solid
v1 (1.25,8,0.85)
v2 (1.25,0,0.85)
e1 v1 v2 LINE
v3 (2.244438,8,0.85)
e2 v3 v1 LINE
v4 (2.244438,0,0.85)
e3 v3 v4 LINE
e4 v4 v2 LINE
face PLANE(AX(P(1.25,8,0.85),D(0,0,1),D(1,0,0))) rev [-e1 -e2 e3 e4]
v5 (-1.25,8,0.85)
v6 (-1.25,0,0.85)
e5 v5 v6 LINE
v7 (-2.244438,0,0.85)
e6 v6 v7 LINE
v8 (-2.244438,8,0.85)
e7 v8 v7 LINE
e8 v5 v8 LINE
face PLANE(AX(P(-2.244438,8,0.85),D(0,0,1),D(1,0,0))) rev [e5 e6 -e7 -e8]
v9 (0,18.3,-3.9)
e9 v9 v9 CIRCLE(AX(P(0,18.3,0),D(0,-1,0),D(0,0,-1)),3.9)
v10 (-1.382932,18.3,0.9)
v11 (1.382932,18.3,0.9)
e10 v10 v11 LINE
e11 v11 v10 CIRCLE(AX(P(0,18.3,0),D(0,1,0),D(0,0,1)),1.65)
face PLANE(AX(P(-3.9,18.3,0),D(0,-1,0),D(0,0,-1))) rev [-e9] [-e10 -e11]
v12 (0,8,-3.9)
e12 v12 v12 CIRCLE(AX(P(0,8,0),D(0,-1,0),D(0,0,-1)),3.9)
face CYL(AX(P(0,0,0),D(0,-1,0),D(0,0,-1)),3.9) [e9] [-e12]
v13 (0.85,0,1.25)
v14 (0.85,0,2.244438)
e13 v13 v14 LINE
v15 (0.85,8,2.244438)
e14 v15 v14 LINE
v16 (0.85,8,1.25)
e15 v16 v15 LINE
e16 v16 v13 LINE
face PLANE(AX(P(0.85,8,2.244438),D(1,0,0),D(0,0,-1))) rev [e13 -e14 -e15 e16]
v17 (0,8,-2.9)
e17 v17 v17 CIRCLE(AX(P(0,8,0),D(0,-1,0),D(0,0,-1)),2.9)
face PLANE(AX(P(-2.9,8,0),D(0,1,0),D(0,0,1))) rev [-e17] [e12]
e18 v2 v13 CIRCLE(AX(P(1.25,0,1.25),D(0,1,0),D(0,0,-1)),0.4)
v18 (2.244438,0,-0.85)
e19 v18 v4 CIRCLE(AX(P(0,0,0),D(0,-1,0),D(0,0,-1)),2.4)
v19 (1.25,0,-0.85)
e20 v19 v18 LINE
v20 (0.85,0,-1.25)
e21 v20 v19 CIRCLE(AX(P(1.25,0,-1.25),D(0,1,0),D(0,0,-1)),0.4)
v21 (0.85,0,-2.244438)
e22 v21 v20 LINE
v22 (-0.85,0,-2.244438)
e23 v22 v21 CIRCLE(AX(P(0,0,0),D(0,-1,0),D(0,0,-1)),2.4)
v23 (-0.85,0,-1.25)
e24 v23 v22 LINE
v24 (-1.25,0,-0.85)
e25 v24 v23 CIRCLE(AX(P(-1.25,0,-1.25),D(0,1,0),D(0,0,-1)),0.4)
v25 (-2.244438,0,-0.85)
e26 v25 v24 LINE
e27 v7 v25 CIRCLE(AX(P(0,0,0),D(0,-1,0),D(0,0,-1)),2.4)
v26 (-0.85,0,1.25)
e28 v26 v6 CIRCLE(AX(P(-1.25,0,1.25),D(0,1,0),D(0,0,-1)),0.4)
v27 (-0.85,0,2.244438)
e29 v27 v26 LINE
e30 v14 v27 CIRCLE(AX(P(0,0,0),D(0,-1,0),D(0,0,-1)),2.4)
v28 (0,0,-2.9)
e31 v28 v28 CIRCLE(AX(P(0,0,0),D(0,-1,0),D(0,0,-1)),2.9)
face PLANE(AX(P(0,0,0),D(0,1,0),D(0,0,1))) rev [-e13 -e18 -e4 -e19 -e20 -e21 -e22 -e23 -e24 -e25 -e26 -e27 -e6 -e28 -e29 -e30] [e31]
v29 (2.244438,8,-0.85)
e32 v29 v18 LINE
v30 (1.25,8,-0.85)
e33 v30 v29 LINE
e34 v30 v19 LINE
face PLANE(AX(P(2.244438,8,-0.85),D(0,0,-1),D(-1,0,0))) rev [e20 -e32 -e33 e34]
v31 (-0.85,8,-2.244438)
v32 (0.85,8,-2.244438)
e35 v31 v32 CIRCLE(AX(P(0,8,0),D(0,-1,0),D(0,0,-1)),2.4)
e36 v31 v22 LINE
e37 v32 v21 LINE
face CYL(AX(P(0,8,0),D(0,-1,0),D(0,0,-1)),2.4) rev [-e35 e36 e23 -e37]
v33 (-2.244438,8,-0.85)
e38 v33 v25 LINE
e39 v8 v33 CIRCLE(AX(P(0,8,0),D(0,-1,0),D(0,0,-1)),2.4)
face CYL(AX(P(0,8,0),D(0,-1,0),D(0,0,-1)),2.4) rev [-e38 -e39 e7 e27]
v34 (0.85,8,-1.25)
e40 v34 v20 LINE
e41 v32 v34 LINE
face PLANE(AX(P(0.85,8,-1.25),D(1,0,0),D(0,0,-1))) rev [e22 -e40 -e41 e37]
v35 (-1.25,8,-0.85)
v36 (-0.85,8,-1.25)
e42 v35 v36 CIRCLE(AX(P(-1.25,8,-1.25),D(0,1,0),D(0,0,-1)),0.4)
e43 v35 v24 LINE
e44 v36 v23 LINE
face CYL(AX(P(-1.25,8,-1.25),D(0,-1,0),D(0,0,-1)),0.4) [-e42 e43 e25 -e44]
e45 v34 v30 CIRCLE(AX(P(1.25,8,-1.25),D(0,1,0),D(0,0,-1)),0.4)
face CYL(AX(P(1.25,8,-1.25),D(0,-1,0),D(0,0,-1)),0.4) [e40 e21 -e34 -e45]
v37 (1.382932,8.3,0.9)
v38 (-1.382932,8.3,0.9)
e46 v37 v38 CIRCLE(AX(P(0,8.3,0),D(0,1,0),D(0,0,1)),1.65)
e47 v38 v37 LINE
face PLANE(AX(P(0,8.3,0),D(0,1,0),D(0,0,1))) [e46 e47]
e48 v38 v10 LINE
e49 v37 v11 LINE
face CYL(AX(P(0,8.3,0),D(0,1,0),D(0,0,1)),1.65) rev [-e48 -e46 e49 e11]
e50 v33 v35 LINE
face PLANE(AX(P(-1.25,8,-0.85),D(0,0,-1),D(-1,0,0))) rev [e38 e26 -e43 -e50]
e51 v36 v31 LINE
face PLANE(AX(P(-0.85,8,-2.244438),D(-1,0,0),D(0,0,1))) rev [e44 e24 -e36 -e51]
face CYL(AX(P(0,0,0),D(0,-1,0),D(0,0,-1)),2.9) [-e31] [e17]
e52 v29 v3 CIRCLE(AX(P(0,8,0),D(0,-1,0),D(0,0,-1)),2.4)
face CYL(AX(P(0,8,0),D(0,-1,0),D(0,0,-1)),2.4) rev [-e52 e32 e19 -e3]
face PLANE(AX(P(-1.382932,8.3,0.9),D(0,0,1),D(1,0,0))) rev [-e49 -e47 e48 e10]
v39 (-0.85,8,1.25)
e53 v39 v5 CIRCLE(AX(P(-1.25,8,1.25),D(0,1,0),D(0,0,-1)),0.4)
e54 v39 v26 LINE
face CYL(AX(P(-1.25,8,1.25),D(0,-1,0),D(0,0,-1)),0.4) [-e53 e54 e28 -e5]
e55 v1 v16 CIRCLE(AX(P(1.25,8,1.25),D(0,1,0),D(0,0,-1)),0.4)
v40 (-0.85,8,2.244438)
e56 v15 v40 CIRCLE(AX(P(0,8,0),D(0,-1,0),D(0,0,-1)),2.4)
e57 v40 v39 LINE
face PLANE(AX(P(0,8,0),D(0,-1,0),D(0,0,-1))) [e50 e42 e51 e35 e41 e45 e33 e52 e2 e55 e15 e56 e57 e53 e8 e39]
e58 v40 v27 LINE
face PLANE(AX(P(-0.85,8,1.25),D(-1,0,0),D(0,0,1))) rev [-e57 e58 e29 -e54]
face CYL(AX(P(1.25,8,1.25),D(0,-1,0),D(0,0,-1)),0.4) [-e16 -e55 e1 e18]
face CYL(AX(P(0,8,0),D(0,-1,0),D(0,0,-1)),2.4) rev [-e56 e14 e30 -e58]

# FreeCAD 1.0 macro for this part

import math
import FreeCAD as App
import Part
import Sketcher
from FreeCAD import Vector
Q = App.Units.Quantity


def add_polygon(sketch, points):
    """Adds a closed chain of lines whose ends are joined by coincident constraints."""
    first, n = sketch.GeometryCount, len(points)
    for a, b in zip(points, points[1:] + points[:1]):
        sketch.addGeometry(Part.LineSegment(App.Vector(*a, 0), App.Vector(*b, 0)), False)
    for i in range(n):
        sketch.addConstraint(Sketcher.Constraint("Coincident", first + i, 2, first + (i + 1) % n, 1))

doc = App.newDocument("Part")
body = doc.addObject("PartDesign::Body", "Body")

# Sketch on XY plane
sketch1 = body.newObject("Sketcher::SketchObject", "Sketch")
sketch1.AttachmentSupport = (doc.getObject("XY_Plane"), [""])
sketch1.MapMode = "FlatFace"
add_polygon(sketch1, [(-2.9, 0), (0, 0), (0, 18.3), (-3.9, 18.3), (-3.9, 8), (-2.9, 8)])  # lines 0-5
sketch1.addConstraint(Sketcher.Constraint("Horizontal", 0))
sketch1.addConstraint(Sketcher.Constraint("Vertical", 1))
sketch1.addConstraint(Sketcher.Constraint("Horizontal", 2))
sketch1.addConstraint(Sketcher.Constraint("Vertical", 3))
sketch1.addConstraint(Sketcher.Constraint("Horizontal", 4))
sketch1.addConstraint(Sketcher.Constraint("Vertical", 5))
sketch1.addConstraint(Sketcher.Constraint("Coincident", 0, 2, -1, 1))
sketch1.addConstraint(Sketcher.Constraint("DistanceX", 4, 1, 4, 2, Q("1 mm")))
sketch1.addConstraint(Sketcher.Constraint("DistanceY", 5, 2, 5, 1, Q("8 mm")))
sketch1.addConstraint(Sketcher.Constraint("DistanceX", 0, 1, 0, 2, Q("2.9 mm")))
sketch1.addConstraint(Sketcher.Constraint("DistanceY", 1, 1, 1, 2, Q("18.3 mm")))
revolution = body.newObject("PartDesign::Revolution", "Revolution")
revolution.Profile = sketch1
revolution.ReferenceAxis = (sketch1, ["V_Axis"])
revolution.Angle = 360

# Sketch on XZ plane
sketch2 = body.newObject("Sketcher::SketchObject", "Sketch001")
sketch2.AttachmentSupport = (doc.getObject("XZ_Plane"), [""])
sketch2.MapMode = "FlatFace"
sketch2.addGeometry(Part.LineSegment(Vector(0.85, 1.25, 0), Vector(0.85, 2.24, 0)), False)
sketch2.addGeometry(Part.ArcOfCircle(Part.Circle(Vector(0, 0, 0), Vector(0, 0, 1), 2.4), math.radians(69), math.radians(90)), False)
sketch2.addGeometry(Part.ArcOfCircle(Part.Circle(Vector(0, 0, 0), Vector(0, 0, 1), 2.4), math.radians(90), math.radians(111)), False)
sketch2.addGeometry(Part.LineSegment(Vector(-0.85, 2.24, 0), Vector(-0.85, 1.25, 0)), False)
sketch2.addGeometry(Part.ArcOfCircle(Part.Circle(Vector(-1.25, 1.25, 0), Vector(0, 0, 1), 0.4), math.radians(-90), math.radians(0)), False)
sketch2.addGeometry(Part.LineSegment(Vector(-1.25, 0.85, 0), Vector(-2.24, 0.85, 0)), False)
sketch2.addGeometry(Part.ArcOfCircle(Part.Circle(Vector(0, 0, 0), Vector(0, 0, 1), 2.4), math.radians(159), math.radians(180)), False)
sketch2.addGeometry(Part.ArcOfCircle(Part.Circle(Vector(0, 0, 0), Vector(0, 0, 1), 2.4), math.radians(-180), math.radians(-159)), False)
sketch2.addGeometry(Part.LineSegment(Vector(-2.24, -0.85, 0), Vector(-1.25, -0.85, 0)), False)
sketch2.addGeometry(Part.ArcOfCircle(Part.Circle(Vector(-1.25, -1.25, 0), Vector(0, 0, 1), 0.4), math.radians(0), math.radians(90)), False)
sketch2.addGeometry(Part.LineSegment(Vector(-0.85, -1.25, 0), Vector(-0.85, -2.24, 0)), False)
sketch2.addGeometry(Part.ArcOfCircle(Part.Circle(Vector(0, 0, 0), Vector(0, 0, 1), 2.4), math.radians(-111), math.radians(-90)), False)
sketch2.addGeometry(Part.ArcOfCircle(Part.Circle(Vector(0, 0, 0), Vector(0, 0, 1), 2.4), math.radians(-90), math.radians(-69)), False)
sketch2.addGeometry(Part.LineSegment(Vector(0.85, -2.24, 0), Vector(0.85, -1.25, 0)), False)
sketch2.addGeometry(Part.ArcOfCircle(Part.Circle(Vector(1.25, -1.25, 0), Vector(0, 0, 1), 0.4), math.radians(90), math.radians(180)), False)
sketch2.addGeometry(Part.LineSegment(Vector(1.25, -0.85, 0), Vector(2.24, -0.85, 0)), False)
sketch2.addGeometry(Part.ArcOfCircle(Part.Circle(Vector(0, 0, 0), Vector(0, 0, 1), 2.4), math.radians(-21), math.radians(0)), False)
sketch2.addGeometry(Part.ArcOfCircle(Part.Circle(Vector(0, 0, 0), Vector(0, 0, 1), 2.4), math.radians(0), math.radians(21)), False)
sketch2.addGeometry(Part.LineSegment(Vector(2.24, 0.85, 0), Vector(1.25, 0.85, 0)), False)
sketch2.addGeometry(Part.ArcOfCircle(Part.Circle(Vector(1.25, 1.25, 0), Vector(0, 0, 1), 0.4), math.radians(-180), math.radians(-90)), False)
sketch2.addConstraint(Sketcher.Constraint("Coincident", 0, 2, 1, 1))
sketch2.addConstraint(Sketcher.Constraint("Tangent", 1, 2, 2, 1))
sketch2.addConstraint(Sketcher.Constraint("Coincident", 2, 2, 3, 1))
sketch2.addConstraint(Sketcher.Constraint("Tangent", 3, 2, 4, 2))
sketch2.addConstraint(Sketcher.Constraint("Tangent", 4, 1, 5, 1))
sketch2.addConstraint(Sketcher.Constraint("Coincident", 5, 2, 6, 1))
sketch2.addConstraint(Sketcher.Constraint("Tangent", 6, 2, 7, 1))
sketch2.addConstraint(Sketcher.Constraint("Coincident", 7, 2, 8, 1))
sketch2.addConstraint(Sketcher.Constraint("Tangent", 8, 2, 9, 2))
sketch2.addConstraint(Sketcher.Constraint("Tangent", 9, 1, 10, 1))
sketch2.addConstraint(Sketcher.Constraint("Coincident", 10, 2, 11, 1))
sketch2.addConstraint(Sketcher.Constraint("Tangent", 11, 2, 12, 1))
sketch2.addConstraint(Sketcher.Constraint("Coincident", 12, 2, 13, 1))
sketch2.addConstraint(Sketcher.Constraint("Tangent", 13, 2, 14, 2))
sketch2.addConstraint(Sketcher.Constraint("Tangent", 14, 1, 15, 1))
sketch2.addConstraint(Sketcher.Constraint("Coincident", 15, 2, 16, 1))
sketch2.addConstraint(Sketcher.Constraint("Tangent", 16, 2, 17, 1))
sketch2.addConstraint(Sketcher.Constraint("Coincident", 17, 2, 18, 1))
sketch2.addConstraint(Sketcher.Constraint("Tangent", 18, 2, 19, 2))
sketch2.addConstraint(Sketcher.Constraint("Tangent", 19, 1, 0, 1))
sketch2.addConstraint(Sketcher.Constraint("Vertical", 0))
sketch2.addConstraint(Sketcher.Constraint("Vertical", 3))
sketch2.addConstraint(Sketcher.Constraint("Horizontal", 5))
sketch2.addConstraint(Sketcher.Constraint("Horizontal", 8))
sketch2.addConstraint(Sketcher.Constraint("Vertical", 10))
sketch2.addConstraint(Sketcher.Constraint("Vertical", 13))
sketch2.addConstraint(Sketcher.Constraint("Horizontal", 15))
sketch2.addConstraint(Sketcher.Constraint("Horizontal", 18))
sketch2.addConstraint(Sketcher.Constraint("Coincident", 1, 3, -1, 1))
sketch2.addConstraint(Sketcher.Constraint("Coincident", 6, 3, -1, 1))
sketch2.addConstraint(Sketcher.Constraint("Coincident", 11, 3, -1, 1))
sketch2.addConstraint(Sketcher.Constraint("Coincident", 16, 3, -1, 1))
sketch2.addConstraint(Sketcher.Constraint("Equal", 1, 2))
sketch2.addConstraint(Sketcher.Constraint("Equal", 2, 6))
sketch2.addConstraint(Sketcher.Constraint("Equal", 6, 7))
sketch2.addConstraint(Sketcher.Constraint("Equal", 4, 9))
sketch2.addConstraint(Sketcher.Constraint("Equal", 7, 11))
sketch2.addConstraint(Sketcher.Constraint("Equal", 11, 12))
sketch2.addConstraint(Sketcher.Constraint("Equal", 9, 14))
sketch2.addConstraint(Sketcher.Constraint("Equal", 12, 16))
sketch2.addConstraint(Sketcher.Constraint("Equal", 16, 17))
sketch2.addConstraint(Sketcher.Constraint("Equal", 14, 19))
sketch2.addConstraint(Sketcher.Constraint("Symmetric", 4, 3, 14, 3, -1, 1))
sketch2.addConstraint(Sketcher.Constraint("Symmetric", 9, 3, 19, 3, -1, 1))
sketch2.addConstraint(Sketcher.Constraint("Symmetric", 9, 3, 14, 3, -2))
sketch2.addConstraint(Sketcher.Constraint("PointOnObject", 1, 2, -2))
sketch2.addConstraint(Sketcher.Constraint("PointOnObject", 6, 2, -1))
sketch2.addConstraint(Sketcher.Constraint("PointOnObject", 11, 2, -2))
sketch2.addConstraint(Sketcher.Constraint("PointOnObject", 16, 2, -1))
sketch2.addConstraint(Sketcher.Constraint("Equal", 18, 0))
sketch2.addConstraint(Sketcher.Constraint("Radius", 1, Q("2.4 mm")))
sketch2.addConstraint(Sketcher.Constraint("Radius", 4, Q("0.4 mm")))
sketch2.addConstraint(Sketcher.Constraint("DistanceY", 9, 3, 4, 3, Q("2.5 mm")))
pocket1 = body.newObject("PartDesign::Pocket", "Pocket")
pocket1.Profile = sketch2
pocket1.Length = 8

# Sketch on XZ plane
sketch3 = body.newObject("Sketcher::SketchObject", "Sketch002")
sketch3.AttachmentSupport = (doc.getObject("XZ_Plane"), [""])
sketch3.MapMode = "FlatFace"
sketch3.AttachmentOffset = App.Placement(Vector(0, 0, -18.3), App.Rotation())
sketch3.addGeometry(Part.LineSegment(Vector(-1.4, 0.9, 0), Vector(1.4, 0.9, 0)), False)
sketch3.addGeometry(Part.ArcOfCircle(Part.Circle(Vector(0, 0, 0), Vector(0, 0, 1), 1.6), math.radians(147), math.radians(393)), False)
sketch3.addConstraint(Sketcher.Constraint("Coincident", 0, 1, 1, 1))
sketch3.addConstraint(Sketcher.Constraint("Coincident", 1, 2, 0, 2))
sketch3.addConstraint(Sketcher.Constraint("Horizontal", 0))
sketch3.addConstraint(Sketcher.Constraint("Coincident", 1, 3, -1, 1))
sketch3.addConstraint(Sketcher.Constraint("Radius", 1, Q("1.65 mm")))
sketch3.addConstraint(Sketcher.Constraint("DistanceY", -1, 1, 0, 1, Q("0.9 mm")))
pocket2 = body.newObject("PartDesign::Pocket", "Pocket001")
pocket2.Profile = sketch3
pocket2.Length = 10
pocket2.Reversed = True

doc.recompute()
